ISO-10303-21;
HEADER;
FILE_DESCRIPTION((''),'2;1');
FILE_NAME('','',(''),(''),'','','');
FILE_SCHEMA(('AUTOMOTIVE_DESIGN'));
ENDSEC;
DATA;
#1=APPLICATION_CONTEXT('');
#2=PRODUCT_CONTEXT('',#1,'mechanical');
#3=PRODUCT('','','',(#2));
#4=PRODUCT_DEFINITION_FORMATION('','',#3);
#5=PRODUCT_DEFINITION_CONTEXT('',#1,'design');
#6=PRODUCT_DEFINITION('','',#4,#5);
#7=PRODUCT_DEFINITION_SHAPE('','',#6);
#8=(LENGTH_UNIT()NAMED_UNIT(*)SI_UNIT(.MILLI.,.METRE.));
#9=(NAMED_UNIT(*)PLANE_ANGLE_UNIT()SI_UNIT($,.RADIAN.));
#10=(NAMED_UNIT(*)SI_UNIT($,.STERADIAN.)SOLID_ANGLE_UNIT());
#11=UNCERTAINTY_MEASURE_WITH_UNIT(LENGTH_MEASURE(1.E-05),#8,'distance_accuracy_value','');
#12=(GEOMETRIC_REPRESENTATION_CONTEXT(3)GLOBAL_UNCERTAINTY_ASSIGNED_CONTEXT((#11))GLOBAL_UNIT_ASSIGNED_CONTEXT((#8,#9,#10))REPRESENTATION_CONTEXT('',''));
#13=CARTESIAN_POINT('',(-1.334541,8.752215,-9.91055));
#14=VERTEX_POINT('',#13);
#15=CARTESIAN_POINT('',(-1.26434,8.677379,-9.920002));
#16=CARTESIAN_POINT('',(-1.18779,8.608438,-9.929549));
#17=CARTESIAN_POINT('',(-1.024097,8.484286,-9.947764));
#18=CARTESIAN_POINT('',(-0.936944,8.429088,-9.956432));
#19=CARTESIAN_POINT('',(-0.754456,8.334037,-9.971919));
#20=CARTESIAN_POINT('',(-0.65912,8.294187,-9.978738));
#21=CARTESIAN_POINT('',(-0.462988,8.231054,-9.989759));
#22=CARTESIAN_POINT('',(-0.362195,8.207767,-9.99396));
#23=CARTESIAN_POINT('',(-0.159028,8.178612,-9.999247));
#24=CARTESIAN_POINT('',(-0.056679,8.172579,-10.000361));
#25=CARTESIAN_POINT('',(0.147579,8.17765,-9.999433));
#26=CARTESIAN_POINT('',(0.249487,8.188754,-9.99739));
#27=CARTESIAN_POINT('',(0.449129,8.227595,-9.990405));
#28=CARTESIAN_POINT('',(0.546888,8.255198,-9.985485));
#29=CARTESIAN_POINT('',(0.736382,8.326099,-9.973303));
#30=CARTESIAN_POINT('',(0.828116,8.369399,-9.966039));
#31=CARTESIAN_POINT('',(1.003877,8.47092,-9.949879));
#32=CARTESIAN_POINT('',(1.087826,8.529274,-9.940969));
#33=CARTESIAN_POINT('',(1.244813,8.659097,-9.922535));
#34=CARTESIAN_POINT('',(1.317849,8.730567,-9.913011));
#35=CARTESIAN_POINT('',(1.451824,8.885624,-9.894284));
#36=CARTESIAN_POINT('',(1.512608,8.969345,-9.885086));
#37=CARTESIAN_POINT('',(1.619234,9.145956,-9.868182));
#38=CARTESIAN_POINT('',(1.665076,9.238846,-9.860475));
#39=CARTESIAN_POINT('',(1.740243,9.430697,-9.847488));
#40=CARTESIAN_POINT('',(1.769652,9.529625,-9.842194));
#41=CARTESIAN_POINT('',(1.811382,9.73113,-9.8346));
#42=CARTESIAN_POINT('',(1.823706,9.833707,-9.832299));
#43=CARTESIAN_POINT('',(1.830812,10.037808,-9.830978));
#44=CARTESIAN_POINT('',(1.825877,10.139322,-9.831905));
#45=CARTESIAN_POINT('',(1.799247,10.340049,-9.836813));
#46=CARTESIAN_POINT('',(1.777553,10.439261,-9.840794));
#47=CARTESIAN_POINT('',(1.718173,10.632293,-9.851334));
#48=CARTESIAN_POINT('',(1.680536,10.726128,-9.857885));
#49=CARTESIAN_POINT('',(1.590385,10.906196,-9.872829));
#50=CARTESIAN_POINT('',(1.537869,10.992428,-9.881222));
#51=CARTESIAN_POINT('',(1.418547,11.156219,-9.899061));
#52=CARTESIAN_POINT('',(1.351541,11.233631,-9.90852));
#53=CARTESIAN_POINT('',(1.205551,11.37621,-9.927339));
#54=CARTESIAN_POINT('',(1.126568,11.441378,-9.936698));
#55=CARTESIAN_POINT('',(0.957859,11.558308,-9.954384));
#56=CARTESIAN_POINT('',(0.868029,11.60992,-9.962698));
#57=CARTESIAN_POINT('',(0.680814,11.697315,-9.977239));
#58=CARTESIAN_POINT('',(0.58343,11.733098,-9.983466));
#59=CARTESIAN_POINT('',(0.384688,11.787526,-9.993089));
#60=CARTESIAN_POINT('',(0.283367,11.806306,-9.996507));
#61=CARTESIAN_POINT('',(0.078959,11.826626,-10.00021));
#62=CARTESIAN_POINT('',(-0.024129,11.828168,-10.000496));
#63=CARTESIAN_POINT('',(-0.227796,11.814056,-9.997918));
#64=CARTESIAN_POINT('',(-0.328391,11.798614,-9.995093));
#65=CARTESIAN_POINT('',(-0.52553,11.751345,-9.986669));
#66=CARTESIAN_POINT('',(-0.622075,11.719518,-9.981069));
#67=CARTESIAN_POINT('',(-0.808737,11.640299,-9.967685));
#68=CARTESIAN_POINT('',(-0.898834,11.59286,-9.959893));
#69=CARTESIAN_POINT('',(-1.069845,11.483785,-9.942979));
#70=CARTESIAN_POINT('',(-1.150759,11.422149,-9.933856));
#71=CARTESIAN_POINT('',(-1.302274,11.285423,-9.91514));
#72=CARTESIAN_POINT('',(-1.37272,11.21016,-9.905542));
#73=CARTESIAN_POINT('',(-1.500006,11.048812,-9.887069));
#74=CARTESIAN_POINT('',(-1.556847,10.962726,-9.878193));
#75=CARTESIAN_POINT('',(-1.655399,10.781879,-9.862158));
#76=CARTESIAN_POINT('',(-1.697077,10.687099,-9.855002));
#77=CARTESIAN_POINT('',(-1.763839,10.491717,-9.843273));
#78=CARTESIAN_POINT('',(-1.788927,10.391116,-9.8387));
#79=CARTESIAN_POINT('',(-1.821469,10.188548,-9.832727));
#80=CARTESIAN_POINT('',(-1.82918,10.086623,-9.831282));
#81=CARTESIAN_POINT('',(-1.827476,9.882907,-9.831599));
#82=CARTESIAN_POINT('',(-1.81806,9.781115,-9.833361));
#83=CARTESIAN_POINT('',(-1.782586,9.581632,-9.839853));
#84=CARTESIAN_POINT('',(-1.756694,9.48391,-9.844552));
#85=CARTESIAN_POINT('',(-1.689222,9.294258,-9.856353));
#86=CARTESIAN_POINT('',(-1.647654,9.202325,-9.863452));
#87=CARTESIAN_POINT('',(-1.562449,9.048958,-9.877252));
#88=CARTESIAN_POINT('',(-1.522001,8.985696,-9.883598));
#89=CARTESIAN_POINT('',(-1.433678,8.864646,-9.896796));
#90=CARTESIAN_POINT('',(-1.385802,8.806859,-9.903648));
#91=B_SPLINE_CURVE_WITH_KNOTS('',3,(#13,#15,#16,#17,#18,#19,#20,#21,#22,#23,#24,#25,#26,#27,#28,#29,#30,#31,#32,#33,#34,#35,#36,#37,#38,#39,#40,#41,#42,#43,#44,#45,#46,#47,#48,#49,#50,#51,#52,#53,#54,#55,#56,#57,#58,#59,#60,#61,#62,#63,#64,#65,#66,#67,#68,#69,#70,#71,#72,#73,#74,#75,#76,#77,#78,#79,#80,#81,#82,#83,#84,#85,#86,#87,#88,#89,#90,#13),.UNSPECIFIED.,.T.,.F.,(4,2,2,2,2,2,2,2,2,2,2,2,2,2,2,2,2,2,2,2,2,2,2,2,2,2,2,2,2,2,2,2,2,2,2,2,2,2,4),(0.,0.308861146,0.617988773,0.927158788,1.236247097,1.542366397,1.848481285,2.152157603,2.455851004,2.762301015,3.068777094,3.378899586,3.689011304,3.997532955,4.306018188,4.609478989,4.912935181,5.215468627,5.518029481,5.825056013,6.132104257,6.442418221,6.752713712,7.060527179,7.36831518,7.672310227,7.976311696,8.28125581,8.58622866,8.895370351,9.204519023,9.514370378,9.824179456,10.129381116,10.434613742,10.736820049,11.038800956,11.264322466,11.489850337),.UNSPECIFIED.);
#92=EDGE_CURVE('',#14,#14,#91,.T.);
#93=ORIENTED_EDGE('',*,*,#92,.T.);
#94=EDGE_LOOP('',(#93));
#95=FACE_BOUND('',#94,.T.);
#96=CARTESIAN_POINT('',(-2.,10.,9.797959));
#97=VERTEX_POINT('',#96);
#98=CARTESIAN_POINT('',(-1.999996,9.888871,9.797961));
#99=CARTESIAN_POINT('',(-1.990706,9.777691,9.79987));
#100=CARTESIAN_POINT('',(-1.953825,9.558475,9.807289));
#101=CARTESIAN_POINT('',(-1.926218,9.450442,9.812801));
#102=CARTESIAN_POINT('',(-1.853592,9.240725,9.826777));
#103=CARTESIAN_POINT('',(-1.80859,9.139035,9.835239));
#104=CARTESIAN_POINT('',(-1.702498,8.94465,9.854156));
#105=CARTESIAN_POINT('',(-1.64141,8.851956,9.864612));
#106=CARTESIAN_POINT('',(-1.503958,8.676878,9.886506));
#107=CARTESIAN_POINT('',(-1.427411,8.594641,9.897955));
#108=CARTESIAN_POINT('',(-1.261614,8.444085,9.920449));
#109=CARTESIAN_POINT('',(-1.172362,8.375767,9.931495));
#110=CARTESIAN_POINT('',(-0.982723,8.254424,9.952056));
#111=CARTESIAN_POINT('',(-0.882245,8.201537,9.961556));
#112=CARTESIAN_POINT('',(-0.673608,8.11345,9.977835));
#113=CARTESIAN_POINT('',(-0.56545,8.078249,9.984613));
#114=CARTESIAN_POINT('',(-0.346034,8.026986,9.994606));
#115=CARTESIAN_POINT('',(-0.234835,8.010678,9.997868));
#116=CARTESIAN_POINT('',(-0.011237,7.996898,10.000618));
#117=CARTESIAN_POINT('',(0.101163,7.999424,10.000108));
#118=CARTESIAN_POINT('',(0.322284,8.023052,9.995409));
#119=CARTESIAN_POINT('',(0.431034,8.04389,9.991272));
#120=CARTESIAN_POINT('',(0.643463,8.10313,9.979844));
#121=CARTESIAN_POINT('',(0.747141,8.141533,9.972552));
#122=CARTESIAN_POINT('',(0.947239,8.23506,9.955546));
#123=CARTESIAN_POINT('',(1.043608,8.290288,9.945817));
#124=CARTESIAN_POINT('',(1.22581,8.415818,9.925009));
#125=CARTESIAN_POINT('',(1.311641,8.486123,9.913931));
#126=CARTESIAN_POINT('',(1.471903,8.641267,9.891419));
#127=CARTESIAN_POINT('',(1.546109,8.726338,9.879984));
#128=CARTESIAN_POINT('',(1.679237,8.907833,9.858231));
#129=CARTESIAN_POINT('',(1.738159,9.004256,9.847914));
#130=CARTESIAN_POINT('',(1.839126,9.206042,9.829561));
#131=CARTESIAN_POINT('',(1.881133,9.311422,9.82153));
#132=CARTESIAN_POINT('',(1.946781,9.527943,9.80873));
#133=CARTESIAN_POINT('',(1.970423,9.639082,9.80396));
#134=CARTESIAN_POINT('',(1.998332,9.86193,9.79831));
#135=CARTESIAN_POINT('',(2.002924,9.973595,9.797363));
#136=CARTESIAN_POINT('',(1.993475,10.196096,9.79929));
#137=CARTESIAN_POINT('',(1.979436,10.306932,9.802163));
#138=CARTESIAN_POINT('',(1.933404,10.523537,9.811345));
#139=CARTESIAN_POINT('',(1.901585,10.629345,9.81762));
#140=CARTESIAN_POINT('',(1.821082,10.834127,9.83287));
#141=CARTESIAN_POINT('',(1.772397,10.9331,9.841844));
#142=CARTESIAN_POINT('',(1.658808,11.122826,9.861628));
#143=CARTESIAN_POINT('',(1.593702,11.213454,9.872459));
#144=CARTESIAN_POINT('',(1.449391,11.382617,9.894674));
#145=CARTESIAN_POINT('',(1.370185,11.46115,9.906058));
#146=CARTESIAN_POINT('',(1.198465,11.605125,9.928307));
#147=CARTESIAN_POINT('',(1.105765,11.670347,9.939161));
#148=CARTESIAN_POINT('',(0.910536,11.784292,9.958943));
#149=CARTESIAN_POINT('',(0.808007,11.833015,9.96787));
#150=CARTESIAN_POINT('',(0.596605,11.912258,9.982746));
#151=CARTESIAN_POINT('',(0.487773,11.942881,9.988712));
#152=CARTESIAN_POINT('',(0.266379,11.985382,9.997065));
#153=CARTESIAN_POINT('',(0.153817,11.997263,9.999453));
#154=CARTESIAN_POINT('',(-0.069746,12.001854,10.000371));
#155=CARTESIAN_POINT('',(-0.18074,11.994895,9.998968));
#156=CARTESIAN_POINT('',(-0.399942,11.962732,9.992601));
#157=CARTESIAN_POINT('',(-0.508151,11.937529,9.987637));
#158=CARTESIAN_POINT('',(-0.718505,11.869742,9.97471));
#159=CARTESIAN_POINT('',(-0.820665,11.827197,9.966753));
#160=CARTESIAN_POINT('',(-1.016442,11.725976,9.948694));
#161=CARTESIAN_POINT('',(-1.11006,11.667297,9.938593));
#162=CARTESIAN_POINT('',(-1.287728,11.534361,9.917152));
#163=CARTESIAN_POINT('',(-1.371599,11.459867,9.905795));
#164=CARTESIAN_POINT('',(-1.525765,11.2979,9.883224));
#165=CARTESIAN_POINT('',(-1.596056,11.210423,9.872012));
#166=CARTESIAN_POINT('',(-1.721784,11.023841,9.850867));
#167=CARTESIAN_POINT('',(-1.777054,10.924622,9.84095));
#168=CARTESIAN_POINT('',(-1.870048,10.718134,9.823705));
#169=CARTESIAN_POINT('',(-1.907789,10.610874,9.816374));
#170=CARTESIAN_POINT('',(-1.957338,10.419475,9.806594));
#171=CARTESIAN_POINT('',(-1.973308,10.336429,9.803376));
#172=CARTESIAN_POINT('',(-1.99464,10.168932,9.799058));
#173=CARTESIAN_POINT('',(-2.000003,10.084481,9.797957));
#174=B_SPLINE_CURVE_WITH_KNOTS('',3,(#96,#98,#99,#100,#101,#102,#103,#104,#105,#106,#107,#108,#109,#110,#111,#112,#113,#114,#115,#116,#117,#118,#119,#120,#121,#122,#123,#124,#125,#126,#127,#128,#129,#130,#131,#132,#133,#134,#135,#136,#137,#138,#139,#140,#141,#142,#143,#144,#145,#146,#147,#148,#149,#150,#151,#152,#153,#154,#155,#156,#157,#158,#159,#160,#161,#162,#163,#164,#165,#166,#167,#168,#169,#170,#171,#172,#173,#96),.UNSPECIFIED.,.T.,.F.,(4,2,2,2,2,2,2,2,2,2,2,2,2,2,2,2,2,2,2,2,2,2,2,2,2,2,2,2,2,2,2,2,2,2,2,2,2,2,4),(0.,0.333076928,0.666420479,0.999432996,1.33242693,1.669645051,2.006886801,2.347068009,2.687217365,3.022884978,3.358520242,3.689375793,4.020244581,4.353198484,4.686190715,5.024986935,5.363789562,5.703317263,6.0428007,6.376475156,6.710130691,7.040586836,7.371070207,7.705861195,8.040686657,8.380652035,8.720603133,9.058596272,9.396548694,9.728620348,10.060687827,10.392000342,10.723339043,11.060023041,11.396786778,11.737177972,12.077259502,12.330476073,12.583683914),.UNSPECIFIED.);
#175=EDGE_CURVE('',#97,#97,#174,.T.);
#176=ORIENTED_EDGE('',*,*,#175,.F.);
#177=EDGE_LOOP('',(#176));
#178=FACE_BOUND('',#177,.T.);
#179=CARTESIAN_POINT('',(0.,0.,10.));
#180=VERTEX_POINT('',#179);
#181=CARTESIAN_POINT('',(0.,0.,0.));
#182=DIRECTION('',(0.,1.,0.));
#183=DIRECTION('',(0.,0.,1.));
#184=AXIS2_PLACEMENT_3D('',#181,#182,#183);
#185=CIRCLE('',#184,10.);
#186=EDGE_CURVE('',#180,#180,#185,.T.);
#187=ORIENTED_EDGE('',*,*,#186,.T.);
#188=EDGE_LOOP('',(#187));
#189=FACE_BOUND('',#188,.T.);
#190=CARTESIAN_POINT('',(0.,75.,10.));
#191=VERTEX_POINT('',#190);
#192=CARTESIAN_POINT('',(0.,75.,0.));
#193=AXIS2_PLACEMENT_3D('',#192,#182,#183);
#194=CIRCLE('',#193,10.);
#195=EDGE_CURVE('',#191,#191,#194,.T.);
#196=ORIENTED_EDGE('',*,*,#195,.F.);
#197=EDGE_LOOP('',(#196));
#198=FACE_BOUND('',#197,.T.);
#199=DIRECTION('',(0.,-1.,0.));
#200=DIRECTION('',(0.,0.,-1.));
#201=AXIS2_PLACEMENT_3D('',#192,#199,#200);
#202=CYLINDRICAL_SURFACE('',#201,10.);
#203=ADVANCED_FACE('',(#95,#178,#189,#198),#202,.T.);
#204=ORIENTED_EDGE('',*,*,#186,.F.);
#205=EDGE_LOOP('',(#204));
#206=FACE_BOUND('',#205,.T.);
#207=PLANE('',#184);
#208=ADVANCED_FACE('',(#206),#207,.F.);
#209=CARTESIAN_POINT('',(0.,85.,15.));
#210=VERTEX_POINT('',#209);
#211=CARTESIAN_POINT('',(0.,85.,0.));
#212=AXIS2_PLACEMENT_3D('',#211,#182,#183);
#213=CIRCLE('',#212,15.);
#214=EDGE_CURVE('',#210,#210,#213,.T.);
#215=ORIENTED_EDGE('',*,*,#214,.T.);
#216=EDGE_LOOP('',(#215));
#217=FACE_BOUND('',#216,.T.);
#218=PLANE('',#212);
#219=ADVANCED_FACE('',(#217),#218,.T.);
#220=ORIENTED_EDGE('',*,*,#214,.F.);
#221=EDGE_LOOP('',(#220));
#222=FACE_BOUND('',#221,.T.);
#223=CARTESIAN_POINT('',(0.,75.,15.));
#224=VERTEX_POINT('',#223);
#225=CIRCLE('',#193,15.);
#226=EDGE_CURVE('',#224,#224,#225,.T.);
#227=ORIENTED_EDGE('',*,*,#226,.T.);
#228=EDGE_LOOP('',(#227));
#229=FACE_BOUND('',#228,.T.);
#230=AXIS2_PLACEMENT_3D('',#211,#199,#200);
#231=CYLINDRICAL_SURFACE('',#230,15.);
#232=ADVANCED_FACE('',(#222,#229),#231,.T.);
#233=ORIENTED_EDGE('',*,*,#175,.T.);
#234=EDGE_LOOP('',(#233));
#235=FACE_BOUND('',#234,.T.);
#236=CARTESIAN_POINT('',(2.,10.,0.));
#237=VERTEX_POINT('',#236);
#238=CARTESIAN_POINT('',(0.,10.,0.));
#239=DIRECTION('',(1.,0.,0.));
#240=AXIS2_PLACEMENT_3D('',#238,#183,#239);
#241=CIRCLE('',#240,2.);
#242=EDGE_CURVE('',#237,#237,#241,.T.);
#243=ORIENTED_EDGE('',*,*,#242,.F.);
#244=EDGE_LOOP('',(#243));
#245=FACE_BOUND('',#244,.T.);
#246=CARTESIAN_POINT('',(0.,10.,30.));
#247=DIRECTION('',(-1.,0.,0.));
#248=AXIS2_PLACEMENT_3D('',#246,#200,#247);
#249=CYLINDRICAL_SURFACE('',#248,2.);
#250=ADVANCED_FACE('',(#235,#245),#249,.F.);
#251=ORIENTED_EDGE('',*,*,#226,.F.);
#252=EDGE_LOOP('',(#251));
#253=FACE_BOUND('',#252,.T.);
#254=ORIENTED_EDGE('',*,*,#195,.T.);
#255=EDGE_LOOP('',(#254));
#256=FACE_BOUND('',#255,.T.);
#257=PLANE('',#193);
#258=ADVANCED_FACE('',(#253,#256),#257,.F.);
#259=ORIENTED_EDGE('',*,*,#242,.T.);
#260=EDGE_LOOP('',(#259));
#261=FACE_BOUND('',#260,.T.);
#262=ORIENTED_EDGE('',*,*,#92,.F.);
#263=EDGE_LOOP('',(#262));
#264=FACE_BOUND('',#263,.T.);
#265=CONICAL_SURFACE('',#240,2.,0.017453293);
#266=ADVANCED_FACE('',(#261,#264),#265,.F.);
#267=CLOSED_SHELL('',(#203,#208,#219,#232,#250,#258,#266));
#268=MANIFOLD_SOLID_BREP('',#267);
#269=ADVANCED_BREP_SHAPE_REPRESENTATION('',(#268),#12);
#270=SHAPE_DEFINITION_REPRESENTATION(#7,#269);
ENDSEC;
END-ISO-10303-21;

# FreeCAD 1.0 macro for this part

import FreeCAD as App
import Part
import Sketcher

V = App.Vector
Q = App.Units.Quantity

doc = App.newDocument("Part")
body = doc.addObject("PartDesign::Body", "Body")

sketch1 = body.newObject("Sketcher::SketchObject", "Sketch")
sketch1.AttachmentSupport = (doc.getObject("XZ_Plane"), [""])
sketch1.MapMode = "FlatFace"
sketch1.addGeometry(Part.Circle(V(0, 0, 0), V(0, 0, 1), 10), False)
sketch1.addConstraint([
    Sketcher.Constraint("Coincident", 0, 3, -1, 1),
    Sketcher.Constraint("Diameter", 0, Q("20 mm")),
])
pad1 = body.newObject("PartDesign::Pad", "Pad")
pad1.Profile = sketch1
pad1.Length = 75
pad1.Reversed = True

sketch2 = body.newObject("Sketcher::SketchObject", "Sketch001")
sketch2.AttachmentSupport = (doc.getObject("XZ_Plane"), [""])
sketch2.MapMode = "FlatFace"
sketch2.AttachmentOffset = App.Placement(V(0, 0, -75), App.Rotation())
sketch2.addGeometry(Part.Circle(V(0, 0, 0), V(0, 0, 1), 15), False)
sketch2.addConstraint([
    Sketcher.Constraint("Coincident", 0, 3, -1, 1),
    Sketcher.Constraint("Diameter", 0, Q("30 mm")),
])
pad2 = body.newObject("PartDesign::Pad", "Pad001")
pad2.Profile = sketch2
pad2.Length = 10
pad2.Reversed = True

sketch3 = body.newObject("Sketcher::SketchObject", "Sketch002")
sketch3.AttachmentSupport = (doc.getObject("XY_Plane"), [""])
sketch3.MapMode = "FlatFace"
sketch3.addGeometry(Part.Circle(V(0, 10, 0), V(0, 0, 1), 2), False)
sketch3.addConstraint([
    Sketcher.Constraint("PointOnObject", 0, 3, -2),
    Sketcher.Constraint("Diameter", 0, Q("4 mm")),
    Sketcher.Constraint("DistanceY", -1, 1, 0, 3, Q("10 mm")),
])
pocket1 = body.newObject("PartDesign::Pocket", "Pocket")
pocket1.Profile = sketch3
pocket1.Length = 30
pocket1.TaperAngle = -1

sketch4 = body.newObject("Sketcher::SketchObject", "Sketch003")
sketch4.AttachmentSupport = (doc.getObject("XY_Plane"), [""])
sketch4.MapMode = "FlatFace"
sketch4.addGeometry(Part.Circle(V(0, 10, 0), V(0, 0, 1), 2), False)
sketch4.addConstraint([
    Sketcher.Constraint("PointOnObject", 0, 3, -2),
    Sketcher.Constraint("Diameter", 0, Q("4 mm")),
    Sketcher.Constraint("DistanceY", -1, 1, 0, 3, Q("10 mm")),
])
pocket2 = body.newObject("PartDesign::Pocket", "Pocket001")
pocket2.Profile = sketch4
pocket2.Length = 30
pocket2.Reversed = True

doc.recompute()
